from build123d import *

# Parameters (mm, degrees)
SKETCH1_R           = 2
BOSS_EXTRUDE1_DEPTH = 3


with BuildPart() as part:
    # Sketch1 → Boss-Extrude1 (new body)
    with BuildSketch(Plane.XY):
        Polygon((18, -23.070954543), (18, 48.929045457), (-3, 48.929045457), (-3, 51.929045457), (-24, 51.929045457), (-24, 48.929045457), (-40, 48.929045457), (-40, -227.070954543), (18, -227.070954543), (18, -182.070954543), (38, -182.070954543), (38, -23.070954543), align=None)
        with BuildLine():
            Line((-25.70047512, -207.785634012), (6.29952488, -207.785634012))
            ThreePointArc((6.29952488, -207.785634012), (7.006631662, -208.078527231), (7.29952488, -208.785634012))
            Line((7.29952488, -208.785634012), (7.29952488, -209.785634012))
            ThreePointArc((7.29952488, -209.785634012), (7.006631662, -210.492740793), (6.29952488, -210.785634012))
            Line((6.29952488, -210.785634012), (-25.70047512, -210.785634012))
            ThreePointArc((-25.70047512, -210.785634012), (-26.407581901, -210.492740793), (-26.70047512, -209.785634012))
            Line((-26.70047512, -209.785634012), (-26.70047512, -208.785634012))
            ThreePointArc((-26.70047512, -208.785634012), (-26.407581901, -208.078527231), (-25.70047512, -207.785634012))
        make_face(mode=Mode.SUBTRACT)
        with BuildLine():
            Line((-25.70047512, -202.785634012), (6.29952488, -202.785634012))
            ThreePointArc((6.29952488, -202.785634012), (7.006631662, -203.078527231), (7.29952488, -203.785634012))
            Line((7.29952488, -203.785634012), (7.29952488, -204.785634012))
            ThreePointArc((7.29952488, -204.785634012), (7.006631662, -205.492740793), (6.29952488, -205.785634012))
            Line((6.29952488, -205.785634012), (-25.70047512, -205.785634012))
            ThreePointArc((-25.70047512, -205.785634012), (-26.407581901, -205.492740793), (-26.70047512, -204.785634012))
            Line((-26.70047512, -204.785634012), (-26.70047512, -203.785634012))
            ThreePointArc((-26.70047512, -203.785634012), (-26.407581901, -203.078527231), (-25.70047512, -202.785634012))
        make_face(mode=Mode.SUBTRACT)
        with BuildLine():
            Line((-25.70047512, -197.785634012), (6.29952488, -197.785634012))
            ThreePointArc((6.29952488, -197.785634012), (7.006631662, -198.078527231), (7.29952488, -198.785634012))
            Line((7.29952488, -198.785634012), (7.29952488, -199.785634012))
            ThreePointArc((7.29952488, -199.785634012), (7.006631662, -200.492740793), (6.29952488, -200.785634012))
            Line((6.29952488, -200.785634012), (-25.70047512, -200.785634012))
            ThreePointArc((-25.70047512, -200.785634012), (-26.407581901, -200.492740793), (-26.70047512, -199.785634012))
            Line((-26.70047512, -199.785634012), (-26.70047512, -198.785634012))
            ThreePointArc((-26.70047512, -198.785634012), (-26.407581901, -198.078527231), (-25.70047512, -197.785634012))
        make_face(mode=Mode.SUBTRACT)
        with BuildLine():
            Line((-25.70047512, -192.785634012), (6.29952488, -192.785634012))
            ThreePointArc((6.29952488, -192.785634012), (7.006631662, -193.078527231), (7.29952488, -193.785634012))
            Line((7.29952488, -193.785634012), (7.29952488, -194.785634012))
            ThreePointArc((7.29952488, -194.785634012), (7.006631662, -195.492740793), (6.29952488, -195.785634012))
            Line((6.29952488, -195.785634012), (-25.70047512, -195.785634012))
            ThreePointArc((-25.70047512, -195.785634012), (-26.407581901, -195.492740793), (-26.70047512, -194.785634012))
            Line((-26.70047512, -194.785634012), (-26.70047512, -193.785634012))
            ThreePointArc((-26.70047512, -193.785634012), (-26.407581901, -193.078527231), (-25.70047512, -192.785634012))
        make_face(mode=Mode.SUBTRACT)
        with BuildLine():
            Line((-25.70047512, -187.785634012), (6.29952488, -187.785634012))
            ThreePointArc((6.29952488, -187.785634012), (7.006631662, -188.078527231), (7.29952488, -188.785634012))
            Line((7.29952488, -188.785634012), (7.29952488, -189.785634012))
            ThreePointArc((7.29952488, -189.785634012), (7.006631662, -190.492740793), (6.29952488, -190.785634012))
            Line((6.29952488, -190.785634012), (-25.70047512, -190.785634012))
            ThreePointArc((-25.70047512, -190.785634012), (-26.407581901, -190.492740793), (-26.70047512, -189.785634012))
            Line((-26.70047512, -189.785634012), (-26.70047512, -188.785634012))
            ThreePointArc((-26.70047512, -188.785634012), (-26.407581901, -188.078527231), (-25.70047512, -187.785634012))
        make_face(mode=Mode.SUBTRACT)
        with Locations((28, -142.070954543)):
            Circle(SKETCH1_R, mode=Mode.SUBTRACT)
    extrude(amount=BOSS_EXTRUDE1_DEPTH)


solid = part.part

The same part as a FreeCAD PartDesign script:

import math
import FreeCAD as App
import Part
import Sketcher

V = App.Vector


def add_polygon(sketch, points):
    """Adds a closed chain of lines whose ends are joined by coincident constraints."""
    first, n = sketch.GeometryCount, len(points)
    for a, b in zip(points, points[1:] + points[:1]):
        sketch.addGeometry(Part.LineSegment(App.Vector(*a, 0), App.Vector(*b, 0)), False)
    for i in range(n):
        sketch.addConstraint(Sketcher.Constraint("Coincident", first + i, 2, first + (i + 1) % n, 1))

doc = App.newDocument("Part")
body = doc.addObject("PartDesign::Body", "Body")

sketch1 = body.newObject("Sketcher::SketchObject", "Sketch")
sketch1.AttachmentSupport = (doc.getObject("XY_Plane"), [""])
sketch1.MapMode = "FlatFace"
add_polygon(sketch1, [(18, -23.1), (18, 48.9), (-3, 48.9), (-3, 51.9), (-24, 51.9), (-24, 48.9), (-40, 48.9), (-40, -227.1), (18, -227.1), (18, -182.1), (38, -182.1), (38, -23.1)])
sketch1.addGeometry(Part.ArcOfCircle(Part.Circle(V(-25.7, -208.8, 0), V(0, 0, 1), 1), math.radians(90), math.radians(180)), False)
sketch1.addGeometry(Part.LineSegment(V(-25.7, -207.8, 0), V(6.3, -207.8, 0)), False)
sketch1.addGeometry(Part.ArcOfCircle(Part.Circle(V(6.3, -208.8, 0), V(0, 0, 1), 1), math.radians(0), math.radians(90)), False)
sketch1.addGeometry(Part.LineSegment(V(7.3, -208.8, 0), V(7.3, -209.8, 0)), False)
sketch1.addGeometry(Part.ArcOfCircle(Part.Circle(V(6.3, -209.8, 0), V(0, 0, 1), 1), math.radians(-90), math.radians(0)), False)
sketch1.addGeometry(Part.LineSegment(V(6.3, -210.8, 0), V(-25.7, -210.8, 0)), False)
sketch1.addGeometry(Part.ArcOfCircle(Part.Circle(V(-25.7, -209.8, 0), V(0, 0, 1), 1), math.radians(-180), math.radians(-90)), False)
sketch1.addGeometry(Part.LineSegment(V(-26.7, -209.8, 0), V(-26.7, -208.8, 0)), False)
sketch1.addGeometry(Part.ArcOfCircle(Part.Circle(V(-25.7, -203.8, 0), V(0, 0, 1), 1), math.radians(90), math.radians(180)), False)
sketch1.addGeometry(Part.LineSegment(V(-25.7, -202.8, 0), V(6.3, -202.8, 0)), False)
sketch1.addGeometry(Part.ArcOfCircle(Part.Circle(V(6.3, -203.8, 0), V(0, 0, 1), 1), math.radians(0), math.radians(90)), False)
sketch1.addGeometry(Part.LineSegment(V(7.3, -203.8, 0), V(7.3, -204.8, 0)), False)
sketch1.addGeometry(Part.ArcOfCircle(Part.Circle(V(6.3, -204.8, 0), V(0, 0, 1), 1), math.radians(-90), math.radians(0)), False)
sketch1.addGeometry(Part.LineSegment(V(6.3, -205.8, 0), V(-25.7, -205.8, 0)), False)
sketch1.addGeometry(Part.ArcOfCircle(Part.Circle(V(-25.7, -204.8, 0), V(0, 0, 1), 1), math.radians(-180), math.radians(-90)), False)
sketch1.addGeometry(Part.LineSegment(V(-26.7, -204.8, 0), V(-26.7, -203.8, 0)), False)
sketch1.addGeometry(Part.ArcOfCircle(Part.Circle(V(-25.7, -198.8, 0), V(0, 0, 1), 1), math.radians(90), math.radians(180)), False)
sketch1.addGeometry(Part.LineSegment(V(-25.7, -197.8, 0), V(6.3, -197.8, 0)), False)
sketch1.addGeometry(Part.ArcOfCircle(Part.Circle(V(6.3, -198.8, 0), V(0, 0, 1), 1), math.radians(0), math.radians(90)), False)
sketch1.addGeometry(Part.LineSegment(V(7.3, -198.8, 0), V(7.3, -199.8, 0)), False)
sketch1.addGeometry(Part.ArcOfCircle(Part.Circle(V(6.3, -199.8, 0), V(0, 0, 1), 1), math.radians(-90), math.radians(0)), False)
sketch1.addGeometry(Part.LineSegment(V(6.3, -200.8, 0), V(-25.7, -200.8, 0)), False)
sketch1.addGeometry(Part.ArcOfCircle(Part.Circle(V(-25.7, -199.8, 0), V(0, 0, 1), 1), math.radians(-180), math.radians(-90)), False)
sketch1.addGeometry(Part.LineSegment(V(-26.7, -199.8, 0), V(-26.7, -198.8, 0)), False)
sketch1.addGeometry(Part.ArcOfCircle(Part.Circle(V(-25.7, -193.8, 0), V(0, 0, 1), 1), math.radians(90), math.radians(180)), False)
sketch1.addGeometry(Part.LineSegment(V(-25.7, -192.8, 0), V(6.3, -192.8, 0)), False)
sketch1.addGeometry(Part.ArcOfCircle(Part.Circle(V(6.3, -193.8, 0), V(0, 0, 1), 1), math.radians(0), math.radians(90)), False)
sketch1.addGeometry(Part.LineSegment(V(7.3, -193.8, 0), V(7.3, -194.8, 0)), False)
sketch1.addGeometry(Part.ArcOfCircle(Part.Circle(V(6.3, -194.8, 0), V(0, 0, 1), 1), math.radians(-90), math.radians(0)), False)
sketch1.addGeometry(Part.LineSegment(V(6.3, -195.8, 0), V(-25.7, -195.8, 0)), False)
sketch1.addGeometry(Part.ArcOfCircle(Part.Circle(V(-25.7, -194.8, 0), V(0, 0, 1), 1), math.radians(-180), math.radians(-90)), False)
sketch1.addGeometry(Part.LineSegment(V(-26.7, -194.8, 0), V(-26.7, -193.8, 0)), False)
sketch1.addGeometry(Part.ArcOfCircle(Part.Circle(V(-25.7, -188.8, 0), V(0, 0, 1), 1), math.radians(90), math.radians(180)), False)
sketch1.addGeometry(Part.LineSegment(V(-25.7, -187.8, 0), V(6.3, -187.8, 0)), False)
sketch1.addGeometry(Part.ArcOfCircle(Part.Circle(V(6.3, -188.8, 0), V(0, 0, 1), 1), math.radians(0), math.radians(90)), False)
sketch1.addGeometry(Part.LineSegment(V(7.3, -188.8, 0), V(7.3, -189.8, 0)), False)
sketch1.addGeometry(Part.ArcOfCircle(Part.Circle(V(6.3, -189.8, 0), V(0, 0, 1), 1), math.radians(-90), math.radians(0)), False)
sketch1.addGeometry(Part.LineSegment(V(6.3, -190.8, 0), V(-25.7, -190.8, 0)), False)
sketch1.addGeometry(Part.ArcOfCircle(Part.Circle(V(-25.7, -189.8, 0), V(0, 0, 1), 1), math.radians(-180), math.radians(-90)), False)
sketch1.addGeometry(Part.LineSegment(V(-26.7, -189.8, 0), V(-26.7, -188.8, 0)), False)
sketch1.addGeometry(Part.Circle(V(28, -142.1, 0), V(0, 0, 1), 2), False)
sketch1.addConstraint(Sketcher.Constraint("Tangent", 12, 1, 13, 1))
sketch1.addConstraint(Sketcher.Constraint("Tangent", 13, 2, 14, 2))
sketch1.addConstraint(Sketcher.Constraint("Tangent", 14, 1, 15, 1))
sketch1.addConstraint(Sketcher.Constraint("Tangent", 15, 2, 16, 2))
sketch1.addConstraint(Sketcher.Constraint("Tangent", 16, 1, 17, 1))
sketch1.addConstraint(Sketcher.Constraint("Tangent", 17, 2, 18, 2))
sketch1.addConstraint(Sketcher.Constraint("Tangent", 18, 1, 19, 1))
sketch1.addConstraint(Sketcher.Constraint("Tangent", 19, 2, 12, 2))
sketch1.addConstraint(Sketcher.Constraint("Tangent", 20, 1, 21, 1))
sketch1.addConstraint(Sketcher.Constraint("Tangent", 21, 2, 22, 2))
sketch1.addConstraint(Sketcher.Constraint("Tangent", 22, 1, 23, 1))
sketch1.addConstraint(Sketcher.Constraint("Tangent", 23, 2, 24, 2))
sketch1.addConstraint(Sketcher.Constraint("Tangent", 24, 1, 25, 1))
sketch1.addConstraint(Sketcher.Constraint("Tangent", 25, 2, 26, 2))
sketch1.addConstraint(Sketcher.Constraint("Tangent", 26, 1, 27, 1))
sketch1.addConstraint(Sketcher.Constraint("Tangent", 27, 2, 20, 2))
sketch1.addConstraint(Sketcher.Constraint("Tangent", 28, 1, 29, 1))
sketch1.addConstraint(Sketcher.Constraint("Tangent", 29, 2, 30, 2))
sketch1.addConstraint(Sketcher.Constraint("Tangent", 30, 1, 31, 1))
sketch1.addConstraint(Sketcher.Constraint("Tangent", 31, 2, 32, 2))
sketch1.addConstraint(Sketcher.Constraint("Tangent", 32, 1, 33, 1))
sketch1.addConstraint(Sketcher.Constraint("Tangent", 33, 2, 34, 2))
sketch1.addConstraint(Sketcher.Constraint("Tangent", 34, 1, 35, 1))
sketch1.addConstraint(Sketcher.Constraint("Tangent", 35, 2, 28, 2))
sketch1.addConstraint(Sketcher.Constraint("Tangent", 36, 1, 37, 1))
sketch1.addConstraint(Sketcher.Constraint("Tangent", 37, 2, 38, 2))
sketch1.addConstraint(Sketcher.Constraint("Tangent", 38, 1, 39, 1))
sketch1.addConstraint(Sketcher.Constraint("Tangent", 39, 2, 40, 2))
sketch1.addConstraint(Sketcher.Constraint("Tangent", 40, 1, 41, 1))
sketch1.addConstraint(Sketcher.Constraint("Tangent", 41, 2, 42, 2))
sketch1.addConstraint(Sketcher.Constraint("Tangent", 42, 1, 43, 1))
sketch1.addConstraint(Sketcher.Constraint("Tangent", 43, 2, 36, 2))
sketch1.addConstraint(Sketcher.Constraint("Tangent", 44, 1, 45, 1))
sketch1.addConstraint(Sketcher.Constraint("Tangent", 45, 2, 46, 2))
sketch1.addConstraint(Sketcher.Constraint("Tangent", 46, 1, 47, 1))
sketch1.addConstraint(Sketcher.Constraint("Tangent", 47, 2, 48, 2))
sketch1.addConstraint(Sketcher.Constraint("Tangent", 48, 1, 49, 1))
sketch1.addConstraint(Sketcher.Constraint("Tangent", 49, 2, 50, 2))
sketch1.addConstraint(Sketcher.Constraint("Tangent", 50, 1, 51, 1))
sketch1.addConstraint(Sketcher.Constraint("Tangent", 51, 2, 44, 2))
sketch1.addConstraint(Sketcher.Constraint("Vertical", 0))
sketch1.addConstraint(Sketcher.Constraint("Horizontal", 1))
sketch1.addConstraint(Sketcher.Constraint("Vertical", 2))
sketch1.addConstraint(Sketcher.Constraint("Horizontal", 3))
sketch1.addConstraint(Sketcher.Constraint("Vertical", 4))
sketch1.addConstraint(Sketcher.Constraint("Horizontal", 5))
sketch1.addConstraint(Sketcher.Constraint("Vertical", 6))
sketch1.addConstraint(Sketcher.Constraint("Horizontal", 7))
sketch1.addConstraint(Sketcher.Constraint("Vertical", 8))
sketch1.addConstraint(Sketcher.Constraint("Horizontal", 9))
sketch1.addConstraint(Sketcher.Constraint("Vertical", 10))
sketch1.addConstraint(Sketcher.Constraint("Horizontal", 11))
sketch1.addConstraint(Sketcher.Constraint("Horizontal", 13))
sketch1.addConstraint(Sketcher.Constraint("Vertical", 15))
sketch1.addConstraint(Sketcher.Constraint("Horizontal", 17))
sketch1.addConstraint(Sketcher.Constraint("Vertical", 19))
sketch1.addConstraint(Sketcher.Constraint("Horizontal", 21))
sketch1.addConstraint(Sketcher.Constraint("Vertical", 23))
sketch1.addConstraint(Sketcher.Constraint("Horizontal", 25))
sketch1.addConstraint(Sketcher.Constraint("Vertical", 27))
sketch1.addConstraint(Sketcher.Constraint("Horizontal", 29))
sketch1.addConstraint(Sketcher.Constraint("Vertical", 31))
sketch1.addConstraint(Sketcher.Constraint("Horizontal", 33))
sketch1.addConstraint(Sketcher.Constraint("Vertical", 35))
sketch1.addConstraint(Sketcher.Constraint("Horizontal", 37))
sketch1.addConstraint(Sketcher.Constraint("Vertical", 39))
sketch1.addConstraint(Sketcher.Constraint("Horizontal", 41))
sketch1.addConstraint(Sketcher.Constraint("Vertical", 43))
sketch1.addConstraint(Sketcher.Constraint("Horizontal", 45))
sketch1.addConstraint(Sketcher.Constraint("Vertical", 47))
sketch1.addConstraint(Sketcher.Constraint("Horizontal", 49))
sketch1.addConstraint(Sketcher.Constraint("Vertical", 51))
sketch1.addConstraint(Sketcher.Constraint("Equal", 12, 14))
sketch1.addConstraint(Sketcher.Constraint("Equal", 14, 16))
sketch1.addConstraint(Sketcher.Constraint("Equal", 16, 18))
sketch1.addConstraint(Sketcher.Constraint("Equal", 18, 20))
sketch1.addConstraint(Sketcher.Constraint("Equal", 20, 22))
sketch1.addConstraint(Sketcher.Constraint("Equal", 22, 24))
sketch1.addConstraint(Sketcher.Constraint("Equal", 24, 26))
sketch1.addConstraint(Sketcher.Constraint("Equal", 26, 28))
sketch1.addConstraint(Sketcher.Constraint("Equal", 28, 30))
sketch1.addConstraint(Sketcher.Constraint("Equal", 30, 32))
sketch1.addConstraint(Sketcher.Constraint("Equal", 32, 34))
sketch1.addConstraint(Sketcher.Constraint("Equal", 34, 36))
sketch1.addConstraint(Sketcher.Constraint("Equal", 36, 38))
sketch1.addConstraint(Sketcher.Constraint("Equal", 38, 40))
sketch1.addConstraint(Sketcher.Constraint("Equal", 40, 42))
sketch1.addConstraint(Sketcher.Constraint("Equal", 42, 44))
sketch1.addConstraint(Sketcher.Constraint("Equal", 44, 46))
sketch1.addConstraint(Sketcher.Constraint("Equal", 46, 48))
sketch1.addConstraint(Sketcher.Constraint("Equal", 48, 50))
sketch1.addConstraint(Sketcher.Constraint("Horizontal", 1, 2, 4, 2))
sketch1.addConstraint(Sketcher.Constraint("Vertical", 18, 3, 20, 3))
sketch1.addConstraint(Sketcher.Constraint("Vertical", 16, 3, 22, 3))
sketch1.addConstraint(Sketcher.Constraint("Vertical", 26, 3, 28, 3))
sketch1.addConstraint(Sketcher.Constraint("Vertical", 24, 3, 30, 3))
sketch1.addConstraint(Sketcher.Constraint("Vertical", 34, 3, 36, 3))
sketch1.addConstraint(Sketcher.Constraint("Vertical", 32, 3, 38, 3))
sketch1.addConstraint(Sketcher.Constraint("Vertical", 42, 3, 44, 3))
sketch1.addConstraint(Sketcher.Constraint("Vertical", 40, 3, 46, 3))
sketch1.addConstraint(Sketcher.Constraint("Vertical", 0, 2, 7, 2))
sketch1.addConstraint(Sketcher.Constraint("Equal", 1, 3))
sketch1.addConstraint(Sketcher.Constraint("Equal", 19, 23))
sketch1.addConstraint(Sketcher.Constraint("Equal", 27, 31))
sketch1.addConstraint(Sketcher.Constraint("Equal", 35, 39))
sketch1.addConstraint(Sketcher.Constraint("Equal", 43, 47))
sketch1.addConstraint(Sketcher.Constraint("Diameter", 52, 4.0))
sketch1.addConstraint(Sketcher.Constraint("Radius", 12, 1.0))
sketch1.addConstraint(Sketcher.Constraint("DistanceX", 1, 2, 1, 1, 21.0))
sketch1.addConstraint(Sketcher.Constraint("DistanceX", 5, 2, 5, 1, 16.0))
sketch1.addConstraint(Sketcher.Constraint("DistanceX", 9, 1, 9, 2, 20.0))
sketch1.addConstraint(Sketcher.Constraint("DistanceX", 13, 1, 13, 2, 32.0))
sketch1.addConstraint(Sketcher.Constraint("DistanceY", 0, 1, 0, 2, 72.0))
sketch1.addConstraint(Sketcher.Constraint("DistanceY", 2, 1, 2, 2, 3.0))
sketch1.addConstraint(Sketcher.Constraint("DistanceY", 6, 2, 6, 1, 276.0))
sketch1.addConstraint(Sketcher.Constraint("DistanceY", 8, 1, 8, 2, 45.0))
sketch1.addConstraint(Sketcher.Constraint("DistanceY", 15, 2, 15, 1, 1.0))
sketch1.addConstraint(Sketcher.Constraint("DistanceX", -1, 1, 52, 3, 28.0))
sketch1.addConstraint(Sketcher.Constraint("DistanceX", -1, 1, 0, 2, 18.0))
sketch1.addConstraint(Sketcher.Constraint("DistanceX", 12, 3, -1, 1, 25.700475))
sketch1.addConstraint(Sketcher.Constraint("DistanceY", 12, 3, -1, 1, 208.785634))
sketch1.addConstraint(Sketcher.Constraint("DistanceY", 20, 3, -1, 1, 203.785634))
sketch1.addConstraint(Sketcher.Constraint("DistanceY", 28, 3, -1, 1, 198.785634))
sketch1.addConstraint(Sketcher.Constraint("DistanceY", 36, 3, -1, 1, 193.785634))
sketch1.addConstraint(Sketcher.Constraint("DistanceY", 44, 3, -1, 1, 188.785634))
sketch1.addConstraint(Sketcher.Constraint("DistanceY", 52, 3, -1, 1, 142.070955))
sketch1.addConstraint(Sketcher.Constraint("DistanceY", -1, 1, 0, 2, 48.929045))
pad1 = body.newObject("PartDesign::Pad", "Pad")
pad1.Profile = sketch1
pad1.Length = 3

doc.recompute()
